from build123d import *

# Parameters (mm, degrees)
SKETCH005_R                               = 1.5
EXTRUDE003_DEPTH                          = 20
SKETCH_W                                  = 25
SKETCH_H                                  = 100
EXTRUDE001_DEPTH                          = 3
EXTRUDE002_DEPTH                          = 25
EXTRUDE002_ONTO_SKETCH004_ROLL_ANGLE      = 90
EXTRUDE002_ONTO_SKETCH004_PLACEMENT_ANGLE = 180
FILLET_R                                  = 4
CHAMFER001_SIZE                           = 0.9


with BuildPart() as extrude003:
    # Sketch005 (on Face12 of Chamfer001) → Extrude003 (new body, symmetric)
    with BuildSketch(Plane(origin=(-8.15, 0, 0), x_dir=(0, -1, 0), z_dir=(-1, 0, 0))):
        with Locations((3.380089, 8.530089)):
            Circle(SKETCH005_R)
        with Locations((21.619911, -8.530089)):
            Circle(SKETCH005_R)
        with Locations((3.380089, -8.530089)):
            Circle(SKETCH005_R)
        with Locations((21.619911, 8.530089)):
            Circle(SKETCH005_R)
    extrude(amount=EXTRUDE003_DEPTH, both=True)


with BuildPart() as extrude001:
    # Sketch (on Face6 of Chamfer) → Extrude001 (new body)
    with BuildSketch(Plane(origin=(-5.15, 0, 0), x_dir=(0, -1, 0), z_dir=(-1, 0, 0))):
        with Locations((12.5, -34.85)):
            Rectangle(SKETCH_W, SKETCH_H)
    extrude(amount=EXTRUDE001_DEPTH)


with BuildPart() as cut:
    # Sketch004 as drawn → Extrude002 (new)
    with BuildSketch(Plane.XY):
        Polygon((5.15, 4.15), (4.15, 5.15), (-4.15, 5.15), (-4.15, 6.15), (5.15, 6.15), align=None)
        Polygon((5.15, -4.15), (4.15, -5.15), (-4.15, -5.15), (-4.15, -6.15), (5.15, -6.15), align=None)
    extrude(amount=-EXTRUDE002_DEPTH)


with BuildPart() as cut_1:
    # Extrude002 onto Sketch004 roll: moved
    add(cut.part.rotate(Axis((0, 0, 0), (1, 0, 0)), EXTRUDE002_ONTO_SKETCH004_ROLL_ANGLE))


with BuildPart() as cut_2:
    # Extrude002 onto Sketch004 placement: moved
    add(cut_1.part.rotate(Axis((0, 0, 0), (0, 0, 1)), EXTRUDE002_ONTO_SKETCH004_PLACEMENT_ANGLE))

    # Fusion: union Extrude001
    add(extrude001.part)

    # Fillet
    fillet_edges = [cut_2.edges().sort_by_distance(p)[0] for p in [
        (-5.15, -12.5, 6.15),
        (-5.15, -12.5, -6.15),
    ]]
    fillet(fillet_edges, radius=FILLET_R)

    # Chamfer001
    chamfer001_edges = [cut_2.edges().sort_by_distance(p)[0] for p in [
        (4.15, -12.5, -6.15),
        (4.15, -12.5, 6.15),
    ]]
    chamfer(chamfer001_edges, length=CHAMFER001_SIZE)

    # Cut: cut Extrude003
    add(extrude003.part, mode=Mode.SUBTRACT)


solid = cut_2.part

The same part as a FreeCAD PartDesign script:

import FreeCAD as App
import Part
import Sketcher

V = App.Vector


def edges_at(feature, points):
    """Names of the edges that pass closest to the given points."""
    edges = feature.Shape.Edges
    near = lambda p: min(range(len(edges)), key=lambda i: edges[i].distToShape(Part.Vertex(*p))[0])
    return sorted({f"Edge{near(p) + 1}" for p in points})

doc = App.newDocument("Part")
body = doc.addObject("PartDesign::Body", "Body")
body.AllowCompound = True

# Sketch on YZ plane
sketch1 = body.newObject("Sketcher::SketchObject", "Sketch")
sketch1.AttachmentSupport = (doc.getObject("YZ_Plane"), [""])
sketch1.MapMode = "FlatFace"
sketch1.AttachmentOffset = App.Placement(V(0, 0, -8.15), App.Rotation())
sketch1.addGeometry(Part.Circle(V(-3.4, 8.5, 0), V(0, 0, 1), 1.5), False)
sketch1.addGeometry(Part.Circle(V(-21.6, -8.5, 0), V(0, 0, 1), 1.5), False)
sketch1.addGeometry(Part.Circle(V(-3.4, -8.5, 0), V(0, 0, 1), 1.5), False)
sketch1.addGeometry(Part.Circle(V(-21.6, 8.5, 0), V(0, 0, 1), 1.5), False)
sketch1.addConstraint(Sketcher.Constraint("Equal", 0, 1))
sketch1.addConstraint(Sketcher.Constraint("Equal", 1, 2))
sketch1.addConstraint(Sketcher.Constraint("Equal", 2, 3))
sketch1.addConstraint(Sketcher.Constraint("Symmetric", 0, 3, 2, 3, -1))
sketch1.addConstraint(Sketcher.Constraint("Symmetric", 1, 3, 3, 3, -1))
sketch1.addConstraint(Sketcher.Constraint("Horizontal", 1, 3, 2, 3))
sketch1.addConstraint(Sketcher.Constraint("Diameter", 0, 3.0))
sketch1.addConstraint(Sketcher.Constraint("DistanceX", 0, 3, -1, 1, 3.380089))
sketch1.addConstraint(Sketcher.Constraint("DistanceY", -1, 1, 0, 3, 8.530089))
sketch1.addConstraint(Sketcher.Constraint("DistanceX", 1, 3, -1, 1, 21.619911))
pad1 = body.newObject("PartDesign::Pad", "Pad")
pad1.Profile = sketch1
pad1.Length = 40
pad1.Midplane = True
body2 = doc.addObject("PartDesign::Body", "Body001")

# Sketch on YZ plane
sketch2 = body2.newObject("Sketcher::SketchObject", "Sketch001")
sketch2.AttachmentSupport = (doc.getObject("YZ_Plane001"), [""])
sketch2.MapMode = "FlatFace"
sketch2.AttachmentOffset = App.Placement(V(0, 0, -5.15), App.Rotation())
sketch2.addGeometry(Part.LineSegment(V(0, 15, 0), V(0, -85, 0)), False)
sketch2.addGeometry(Part.LineSegment(V(0, -85, 0), V(-25, -85, 0)), False)
sketch2.addGeometry(Part.LineSegment(V(-25, -85, 0), V(-25, 15, 0)), False)
sketch2.addGeometry(Part.LineSegment(V(-25, 15, 0), V(0, 15, 0)), False)
sketch2.addConstraint(Sketcher.Constraint("Coincident", 0, 2, 1, 1))
sketch2.addConstraint(Sketcher.Constraint("Coincident", 1, 2, 2, 1))
sketch2.addConstraint(Sketcher.Constraint("Coincident", 2, 2, 3, 1))
sketch2.addConstraint(Sketcher.Constraint("Coincident", 3, 2, 0, 1))
sketch2.addConstraint(Sketcher.Constraint("Vertical", 0))
sketch2.addConstraint(Sketcher.Constraint("Horizontal", 1))
sketch2.addConstraint(Sketcher.Constraint("Vertical", 2))
sketch2.addConstraint(Sketcher.Constraint("Horizontal", 3))
sketch2.addConstraint(Sketcher.Constraint("PointOnObject", 0, 2, -2))
sketch2.addConstraint(Sketcher.Constraint("DistanceX", 1, 2, 1, 1, 25.0))
sketch2.addConstraint(Sketcher.Constraint("DistanceY", 0, 2, 0, 1, 100.0))
sketch2.addConstraint(Sketcher.Constraint("DistanceY", 0, 2, -1, 1, 84.85))
pad2 = body2.newObject("PartDesign::Pad", "Pad001")
pad2.Profile = sketch2
pad2.Length = 3
pad2.Reversed = True
body3 = doc.addObject("PartDesign::Body", "Body002")
body3.AllowCompound = True

# Sketch on XY plane
sketch3 = body3.newObject("Sketcher::SketchObject", "Sketch002")
sketch3.AttachmentSupport = (doc.getObject("XY_Plane002"), [""])
sketch3.MapMode = "FlatFace"
sketch3.addGeometry(Part.LineSegment(V(4.2, 5.2, 0), V(5.2, 4.2, 0)), False)
sketch3.addGeometry(Part.LineSegment(V(5.2, 4.2, 0), V(5.2, 6.2, 0)), False)
sketch3.addGeometry(Part.LineSegment(V(5.2, 6.2, 0), V(-4.2, 6.2, 0)), False)
sketch3.addGeometry(Part.LineSegment(V(-4.2, 6.2, 0), V(-4.2, 5.2, 0)), False)
sketch3.addGeometry(Part.LineSegment(V(-4.2, 5.2, 0), V(4.2, 5.2, 0)), False)
sketch3.addGeometry(Part.LineSegment(V(5.2, -4.2, 0), V(4.2, -5.2, 0)), False)
sketch3.addGeometry(Part.LineSegment(V(4.2, -5.2, 0), V(-4.2, -5.2, 0)), False)
sketch3.addGeometry(Part.LineSegment(V(-4.2, -5.2, 0), V(-4.2, -6.2, 0)), False)
sketch3.addGeometry(Part.LineSegment(V(-4.2, -6.2, 0), V(5.2, -6.2, 0)), False)
sketch3.addGeometry(Part.LineSegment(V(5.2, -6.2, 0), V(5.2, -4.2, 0)), False)
sketch3.addConstraint(Sketcher.Constraint("Coincident", 0, 2, 1, 1))
sketch3.addConstraint(Sketcher.Constraint("Coincident", 1, 2, 2, 1))
sketch3.addConstraint(Sketcher.Constraint("Coincident", 2, 2, 3, 1))
sketch3.addConstraint(Sketcher.Constraint("Coincident", 3, 2, 4, 1))
sketch3.addConstraint(Sketcher.Constraint("Coincident", 4, 2, 0, 1))
sketch3.addConstraint(Sketcher.Constraint("Coincident", 5, 2, 6, 1))
sketch3.addConstraint(Sketcher.Constraint("Coincident", 6, 2, 7, 1))
sketch3.addConstraint(Sketcher.Constraint("Coincident", 7, 2, 8, 1))
sketch3.addConstraint(Sketcher.Constraint("Coincident", 8, 2, 9, 1))
sketch3.addConstraint(Sketcher.Constraint("Coincident", 9, 2, 5, 1))
sketch3.addConstraint(Sketcher.Constraint("Vertical", 1))
sketch3.addConstraint(Sketcher.Constraint("Horizontal", 2))
sketch3.addConstraint(Sketcher.Constraint("Vertical", 3))
sketch3.addConstraint(Sketcher.Constraint("Horizontal", 4))
sketch3.addConstraint(Sketcher.Constraint("Horizontal", 6))
sketch3.addConstraint(Sketcher.Constraint("Vertical", 7))
sketch3.addConstraint(Sketcher.Constraint("Horizontal", 8))
sketch3.addConstraint(Sketcher.Constraint("Vertical", 9))
sketch3.addConstraint(Sketcher.Constraint("Symmetric", 3, 2, 5, 2, -1, 1))
sketch3.addConstraint(Sketcher.Constraint("Symmetric", 2, 2, 7, 2, -1))
sketch3.addConstraint(Sketcher.Constraint("Symmetric", 0, 2, 9, 2, -1))
sketch3.addConstraint(Sketcher.Constraint("Perpendicular", 0, 5))
sketch3.addConstraint(Sketcher.Constraint("Vertical", 4, 2, 5, 2))
sketch3.addConstraint(Sketcher.Constraint("DistanceY", 1, 1, 1, 2, 2.0))
sketch3.addConstraint(Sketcher.Constraint("DistanceY", 3, 2, 3, 1, 1.0))
sketch3.addConstraint(Sketcher.Constraint("DistanceX", 2, 2, 2, 1, 9.3))
sketch3.addConstraint(Sketcher.Constraint("DistanceY", 5, 2, 0, 2, 9.3))
pad3 = body3.newObject("PartDesign::Pad", "Pad002")
pad3.Profile = sketch3
pad3.Length = 25
pad3.Reversed = True
body4 = doc.addObject("PartDesign::Body", "Body003")
body4.AllowCompound = True
doc.recompute()

body3.Placement = App.Placement(V(0, 0, 0), App.Rotation(V(1, 0, 0), 90))
boolean = body4.newObject("PartDesign::Boolean", "Boolean")
boolean.Type = "Fuse"
boolean.addObjects([body3])
body5 = doc.addObject("PartDesign::Body", "Body004")
body5.AllowCompound = True
doc.recompute()

body4.Placement = App.Placement(V(0, 0, 0), App.Rotation(V(0, 0, 1), 180))
boolean2 = body5.newObject("PartDesign::Boolean", "Boolean001")
boolean2.Type = "Fuse"
boolean2.addObjects([body4])
doc.recompute()

boolean3 = body5.newObject("PartDesign::Boolean", "Boolean002")
boolean3.Type = "Fuse"
boolean3.addObjects([body2])
doc.recompute()

fillet = body5.newObject("PartDesign::Fillet", "Fillet")
fillet.Base = (boolean3, edges_at(boolean3, [(-5.15, -12.5, 6.15), (-5.15, -12.5, -6.15)]))
fillet.Radius = 4
doc.recompute()

chamfer = body5.newObject("PartDesign::Chamfer", "Chamfer")
chamfer.Base = (fillet, edges_at(fillet, [(4.15, -12.5, -6.15), (4.15, -12.5, 6.15)]))
chamfer.Size = 0.9
doc.recompute()

boolean4 = body5.newObject("PartDesign::Boolean", "Boolean003")
boolean4.Type = "Cut"
boolean4.addObjects([body])

doc.recompute()
